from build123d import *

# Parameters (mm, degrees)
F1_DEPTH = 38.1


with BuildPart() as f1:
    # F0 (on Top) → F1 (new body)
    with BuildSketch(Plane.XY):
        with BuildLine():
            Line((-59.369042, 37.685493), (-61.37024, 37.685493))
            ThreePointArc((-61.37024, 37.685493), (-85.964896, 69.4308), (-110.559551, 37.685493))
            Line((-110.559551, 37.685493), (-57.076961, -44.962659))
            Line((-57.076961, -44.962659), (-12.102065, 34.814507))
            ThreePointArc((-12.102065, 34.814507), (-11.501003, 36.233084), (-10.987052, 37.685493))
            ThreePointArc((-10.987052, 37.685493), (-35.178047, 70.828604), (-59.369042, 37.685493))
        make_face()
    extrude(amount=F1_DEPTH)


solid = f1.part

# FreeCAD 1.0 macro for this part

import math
import FreeCAD as App
import Part
import Sketcher
Q = App.Units.Quantity

doc = App.newDocument("Part")
body = doc.addObject("PartDesign::Body", "Body")

sketch1 = doc.addObject("Sketcher::SketchObject", "Sketch")
body.addObject(sketch1)
sketch1.AttachmentSupport = (doc.XY_Plane, [""])
sketch1.MapMode = "FlatFace"
sketch1.addGeometry([
    Part.LineSegment(App.Vector(-59.4, 37.7, 0), App.Vector(-61.4, 37.7, 0)),
    Part.ArcOfCircle(Part.Circle(App.Vector(-86, 44, 0), App.Vector(0, 0, 1), 25.4), math.radians(-14), math.radians(194)),
    Part.LineSegment(App.Vector(-110.6, 37.7, 0), App.Vector(-57.1, -45, 0)),
    Part.LineSegment(App.Vector(-57.1, -45, 0), App.Vector(-12.1, 34.8, 0)),
    Part.ArcOfCircle(Part.Circle(App.Vector(-35.2, 45.4, 0), App.Vector(0, 0, 1), 25.4), math.radians(-24.7), math.radians(-17.75)),
    Part.ArcOfCircle(Part.Circle(App.Vector(-35.2, 45.4, 0), App.Vector(0, 0, 1), 25.4), math.radians(-18), math.radians(198)),
], False)
sketch1.addConstraint([
    Sketcher.Constraint("Coincident", 0, 2, 1, 1),
    Sketcher.Constraint("Coincident", 1, 2, 2, 1),
    Sketcher.Constraint("Coincident", 2, 2, 3, 1),
    Sketcher.Constraint("Coincident", 3, 2, 4, 1),
    Sketcher.Constraint("Tangent", 4, 2, 5, 1),
    Sketcher.Constraint("Coincident", 5, 2, 0, 1),
    Sketcher.Constraint("Horizontal", 0),
    Sketcher.Constraint("Equal", 1, 5),
    Sketcher.Constraint("Horizontal", 0, 2, 1, 2),
    Sketcher.Constraint("Horizontal", 1, 2, 4, 2),
    Sketcher.Constraint("Radius", 1, Q("1 in")),
    Sketcher.Constraint("DistanceX", 0, 2, 0, 1, Q("2.001198 mm")),
    Sketcher.Constraint("Radius", 4, Q("25.400033 mm")),
    Sketcher.Constraint("DistanceX", 5, 2, 4, 3, Q("0.9524002 in")),
    Sketcher.Constraint("DistanceY", -1, 1, 1, 3, Q("44.0308 mm")),
    Sketcher.Constraint("DistanceX", 0, 2, -1, 1, Q("61.37024 mm")),
    Sketcher.Constraint("DistanceX", 1, 2, -1, 1, Q("110.559551 mm")),
    Sketcher.Constraint("DistanceX", 2, 2, -1, 1, Q("57.076961 mm")),
    Sketcher.Constraint("DistanceY", 2, 2, -1, 1, Q("44.962659 mm")),
    Sketcher.Constraint("DistanceX", 5, 3, 3, 2, Q("23.075982 mm")),
])
pad1 = doc.addObject("PartDesign::Pad", "Pad")
body.addObject(pad1)
pad1.Profile = sketch1
pad1.Length = Q("1.5 in")

doc.recompute()
